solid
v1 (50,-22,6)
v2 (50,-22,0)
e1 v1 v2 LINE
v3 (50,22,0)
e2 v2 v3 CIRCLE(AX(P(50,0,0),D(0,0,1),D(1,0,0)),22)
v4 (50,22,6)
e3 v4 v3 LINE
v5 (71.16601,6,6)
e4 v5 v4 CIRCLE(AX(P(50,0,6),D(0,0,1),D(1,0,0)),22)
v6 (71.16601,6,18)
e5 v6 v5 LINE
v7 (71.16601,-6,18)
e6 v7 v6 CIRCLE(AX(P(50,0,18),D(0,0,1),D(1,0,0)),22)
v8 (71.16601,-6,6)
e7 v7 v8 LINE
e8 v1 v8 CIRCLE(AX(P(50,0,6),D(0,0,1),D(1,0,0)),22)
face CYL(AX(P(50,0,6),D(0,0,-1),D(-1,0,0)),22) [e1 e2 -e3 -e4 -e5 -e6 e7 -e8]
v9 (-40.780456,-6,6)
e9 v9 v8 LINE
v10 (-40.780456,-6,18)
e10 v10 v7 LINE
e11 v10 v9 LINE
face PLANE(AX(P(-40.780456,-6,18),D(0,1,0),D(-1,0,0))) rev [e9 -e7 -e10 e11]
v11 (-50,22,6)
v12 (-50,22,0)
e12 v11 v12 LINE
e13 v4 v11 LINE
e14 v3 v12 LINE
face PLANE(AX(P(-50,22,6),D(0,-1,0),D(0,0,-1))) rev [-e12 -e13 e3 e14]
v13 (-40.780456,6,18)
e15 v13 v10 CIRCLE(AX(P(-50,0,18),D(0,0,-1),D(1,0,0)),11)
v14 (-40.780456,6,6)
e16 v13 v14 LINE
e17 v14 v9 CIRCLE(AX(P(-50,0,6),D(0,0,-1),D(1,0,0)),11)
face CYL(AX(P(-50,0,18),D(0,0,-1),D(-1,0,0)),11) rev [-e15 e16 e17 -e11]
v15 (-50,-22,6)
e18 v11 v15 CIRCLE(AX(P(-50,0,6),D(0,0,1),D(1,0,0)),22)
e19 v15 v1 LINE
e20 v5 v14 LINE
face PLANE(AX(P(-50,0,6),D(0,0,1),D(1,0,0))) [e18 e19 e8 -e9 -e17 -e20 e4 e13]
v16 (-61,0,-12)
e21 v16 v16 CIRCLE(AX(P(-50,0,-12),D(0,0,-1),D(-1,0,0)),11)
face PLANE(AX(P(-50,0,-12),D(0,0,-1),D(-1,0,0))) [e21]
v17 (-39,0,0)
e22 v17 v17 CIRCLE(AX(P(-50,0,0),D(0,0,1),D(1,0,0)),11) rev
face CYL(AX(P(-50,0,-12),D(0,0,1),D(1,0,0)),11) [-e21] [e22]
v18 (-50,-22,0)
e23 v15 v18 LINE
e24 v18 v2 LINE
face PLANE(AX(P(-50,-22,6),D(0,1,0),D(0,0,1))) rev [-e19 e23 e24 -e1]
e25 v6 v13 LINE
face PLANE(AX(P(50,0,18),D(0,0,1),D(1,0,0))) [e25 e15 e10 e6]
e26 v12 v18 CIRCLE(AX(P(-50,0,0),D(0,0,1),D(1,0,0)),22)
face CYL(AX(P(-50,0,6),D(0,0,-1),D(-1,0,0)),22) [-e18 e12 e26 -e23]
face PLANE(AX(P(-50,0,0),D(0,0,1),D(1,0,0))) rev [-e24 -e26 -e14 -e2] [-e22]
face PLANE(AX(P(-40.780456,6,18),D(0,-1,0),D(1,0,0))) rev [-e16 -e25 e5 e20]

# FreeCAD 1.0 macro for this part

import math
import FreeCAD as App
import Part
import Sketcher

V = App.Vector
Q = App.Units.Quantity

doc = App.newDocument("Part")
body = doc.addObject("PartDesign::Body", "Body")

# Sketch on XY plane
sketch1 = body.newObject("Sketcher::SketchObject", "Sketch")
sketch1.AttachmentSupport = (doc.getObject("XY_Plane"), [""])
sketch1.MapMode = "FlatFace"
sketch1.addGeometry(Part.LineSegment(V(50, 22, 0), V(-50, 22, 0)), False)
sketch1.addGeometry(Part.ArcOfCircle(Part.Circle(V(-50, 0, 0), V(0, 0, 1), 22), math.radians(90), math.radians(270)), False)
sketch1.addGeometry(Part.LineSegment(V(-50, -22, 0), V(50, -22, 0)), False)
sketch1.addGeometry(Part.ArcOfCircle(Part.Circle(V(50, 0, 0), V(0, 0, 1), 22), math.radians(-90), math.radians(90)), False)
sketch1.addConstraint(Sketcher.Constraint("Tangent", 0, 2, 1, 1))
sketch1.addConstraint(Sketcher.Constraint("Tangent", 1, 2, 2, 1))
sketch1.addConstraint(Sketcher.Constraint("Tangent", 2, 2, 3, 1))
sketch1.addConstraint(Sketcher.Constraint("Tangent", 3, 2, 0, 1))
sketch1.addConstraint(Sketcher.Constraint("Horizontal", 0))
sketch1.addConstraint(Sketcher.Constraint("Horizontal", 2))
sketch1.addConstraint(Sketcher.Constraint("Symmetric", 1, 3, 3, 3, -1, 1))
sketch1.addConstraint(Sketcher.Constraint("Radius", 1, Q("22 mm")))
sketch1.addConstraint(Sketcher.Constraint("DistanceX", 0, 2, 0, 1, Q("100 mm")))
pad1 = body.newObject("PartDesign::Pad", "Pad")
pad1.Profile = sketch1
pad1.Length = 6

# Sketch on XY plane
sketch2 = body.newObject("Sketcher::SketchObject", "Sketch001")
sketch2.AttachmentSupport = (doc.getObject("XY_Plane"), [""])
sketch2.MapMode = "FlatFace"
sketch2.AttachmentOffset = App.Placement(V(0, 0, 6), App.Rotation())
sketch2.addGeometry(Part.LineSegment(V(71, 6, 0), V(-41, 6, 0)), False)
sketch2.addGeometry(Part.ArcOfCircle(Part.Circle(V(-50, 0, 0), V(0, 0, 1), 11), math.radians(-33), math.radians(33)), False)
sketch2.addGeometry(Part.LineSegment(V(-41, -6, 0), V(71, -6, 0)), False)
sketch2.addGeometry(Part.ArcOfCircle(Part.Circle(V(50, 0, 0), V(0, 0, 1), 22), math.radians(-16), math.radians(16)), False)
sketch2.addConstraint(Sketcher.Constraint("Coincident", 0, 2, 1, 2))
sketch2.addConstraint(Sketcher.Constraint("Coincident", 1, 1, 2, 1))
sketch2.addConstraint(Sketcher.Constraint("Coincident", 2, 2, 3, 1))
sketch2.addConstraint(Sketcher.Constraint("Coincident", 3, 2, 0, 1))
sketch2.addConstraint(Sketcher.Constraint("Horizontal", 0))
sketch2.addConstraint(Sketcher.Constraint("Horizontal", 2))
sketch2.addConstraint(Sketcher.Constraint("Symmetric", 1, 3, 3, 3, -1, 1))
sketch2.addConstraint(Sketcher.Constraint("Symmetric", 0, 2, 1, 1, -1))
sketch2.addConstraint(Sketcher.Constraint("Radius", 1, Q("11 mm")))
sketch2.addConstraint(Sketcher.Constraint("Radius", 3, Q("22 mm")))
sketch2.addConstraint(Sketcher.Constraint("DistanceX", 1, 3, -1, 1, Q("50 mm")))
sketch2.addConstraint(Sketcher.Constraint("DistanceY", -1, 1, 0, 2, Q("6 mm")))
pad2 = body.newObject("PartDesign::Pad", "Pad001")
pad2.Profile = sketch2
pad2.Length = 12

# Sketch on XY plane
sketch3 = body.newObject("Sketcher::SketchObject", "Sketch002")
sketch3.AttachmentSupport = (doc.getObject("XY_Plane"), [""])
sketch3.MapMode = "FlatFace"
sketch3.AttachmentOffset = App.Placement(V(0, 0, -12), App.Rotation())
sketch3.addGeometry(Part.Circle(V(-50, 0, 0), V(0, 0, 1), 11), False)
sketch3.addConstraint(Sketcher.Constraint("PointOnObject", 0, 3, -1))
sketch3.addConstraint(Sketcher.Constraint("Diameter", 0, Q("22 mm")))
sketch3.addConstraint(Sketcher.Constraint("DistanceX", 0, 3, -1, 1, Q("50 mm")))
pad3 = body.newObject("PartDesign::Pad", "Pad002")
pad3.Profile = sketch3
pad3.Length = 12

doc.recompute()
